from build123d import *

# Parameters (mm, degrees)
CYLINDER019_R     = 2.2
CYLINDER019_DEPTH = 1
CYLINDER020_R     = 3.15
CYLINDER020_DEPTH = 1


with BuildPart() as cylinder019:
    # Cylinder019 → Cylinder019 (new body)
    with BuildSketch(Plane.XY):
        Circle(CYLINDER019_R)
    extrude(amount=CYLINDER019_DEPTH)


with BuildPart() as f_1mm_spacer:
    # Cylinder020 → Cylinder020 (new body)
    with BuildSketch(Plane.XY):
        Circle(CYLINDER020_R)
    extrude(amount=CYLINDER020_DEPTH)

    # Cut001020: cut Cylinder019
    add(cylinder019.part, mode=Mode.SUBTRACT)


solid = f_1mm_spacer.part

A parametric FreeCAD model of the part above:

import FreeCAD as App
import Part
import Sketcher

V = App.Vector

doc = App.newDocument("Part")
body = doc.addObject("PartDesign::Body", "Body")

# Sketch on XY plane
sketch1 = body.newObject("Sketcher::SketchObject", "Sketch")
sketch1.AttachmentSupport = (doc.getObject("XY_Plane"), [""])
sketch1.MapMode = "FlatFace"
sketch1.addGeometry(Part.Circle(V(0, 0, 0), V(0, 0, 1), 2.2), False)
sketch1.addConstraint([
    Sketcher.Constraint("Coincident", 0, 3, -1, 1),
    Sketcher.Constraint("Diameter", 0, 4.4),
])
pad1 = body.newObject("PartDesign::Pad", "Pad")
pad1.Profile = sketch1
pad1.Length = 1
body2 = doc.addObject("PartDesign::Body", "Body001")

# Sketch on XY plane
sketch2 = body2.newObject("Sketcher::SketchObject", "Sketch001")
sketch2.AttachmentSupport = (doc.getObject("XY_Plane001"), [""])
sketch2.MapMode = "FlatFace"
sketch2.addGeometry(Part.Circle(V(0, 0, 0), V(0, 0, 1), 3.1), False)
sketch2.addConstraint([
    Sketcher.Constraint("Coincident", 0, 3, -1, 1),
    Sketcher.Constraint("Diameter", 0, 6.3),
])
pad2 = body2.newObject("PartDesign::Pad", "Pad001")
pad2.Profile = sketch2
pad2.Length = 1
doc.recompute()

boolean = body2.newObject("PartDesign::Boolean", "Boolean")
boolean.Type = "Cut"
boolean.addObjects([body])

doc.recompute()
